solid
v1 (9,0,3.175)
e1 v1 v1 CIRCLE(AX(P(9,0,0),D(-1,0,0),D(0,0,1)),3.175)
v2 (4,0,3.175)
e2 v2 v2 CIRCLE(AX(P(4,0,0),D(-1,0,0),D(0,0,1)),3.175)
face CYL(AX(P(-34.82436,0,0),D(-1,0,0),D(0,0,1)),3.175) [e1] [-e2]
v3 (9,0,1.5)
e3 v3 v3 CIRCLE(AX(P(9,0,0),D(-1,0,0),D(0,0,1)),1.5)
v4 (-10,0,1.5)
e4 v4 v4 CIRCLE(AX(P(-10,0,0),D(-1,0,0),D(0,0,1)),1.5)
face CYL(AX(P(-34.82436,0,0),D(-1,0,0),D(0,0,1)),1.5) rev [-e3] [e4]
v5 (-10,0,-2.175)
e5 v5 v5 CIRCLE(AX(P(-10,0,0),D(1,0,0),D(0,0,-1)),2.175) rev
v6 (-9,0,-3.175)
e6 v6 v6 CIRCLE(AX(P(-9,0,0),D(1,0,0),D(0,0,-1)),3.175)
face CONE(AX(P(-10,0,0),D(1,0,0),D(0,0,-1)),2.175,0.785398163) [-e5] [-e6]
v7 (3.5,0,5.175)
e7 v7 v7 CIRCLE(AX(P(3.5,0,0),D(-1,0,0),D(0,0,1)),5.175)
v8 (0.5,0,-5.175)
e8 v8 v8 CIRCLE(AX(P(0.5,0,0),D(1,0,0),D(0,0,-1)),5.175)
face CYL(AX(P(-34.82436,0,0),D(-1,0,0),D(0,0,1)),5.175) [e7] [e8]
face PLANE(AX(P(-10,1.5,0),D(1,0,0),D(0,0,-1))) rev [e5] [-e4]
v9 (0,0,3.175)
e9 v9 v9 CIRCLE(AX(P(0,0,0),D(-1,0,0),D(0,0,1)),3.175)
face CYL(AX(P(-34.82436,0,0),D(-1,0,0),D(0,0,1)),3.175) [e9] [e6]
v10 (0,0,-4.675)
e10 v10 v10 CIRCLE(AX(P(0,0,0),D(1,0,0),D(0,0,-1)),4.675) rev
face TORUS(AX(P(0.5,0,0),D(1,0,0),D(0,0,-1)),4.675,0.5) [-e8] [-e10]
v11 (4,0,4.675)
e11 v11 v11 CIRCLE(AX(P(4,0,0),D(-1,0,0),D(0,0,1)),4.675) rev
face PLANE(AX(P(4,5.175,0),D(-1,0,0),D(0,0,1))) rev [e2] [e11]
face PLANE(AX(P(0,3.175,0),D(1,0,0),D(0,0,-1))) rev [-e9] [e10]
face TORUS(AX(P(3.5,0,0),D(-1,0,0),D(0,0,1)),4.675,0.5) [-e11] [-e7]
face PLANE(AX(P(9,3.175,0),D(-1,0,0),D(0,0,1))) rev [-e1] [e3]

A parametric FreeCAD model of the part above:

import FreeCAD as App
import Part
import Sketcher
from FreeCAD import Vector
Q = App.Units.Quantity


def edges_at(feature, points):
    """Names of the edges that pass closest to the given points."""
    edges = feature.Shape.Edges
    near = lambda p: min(range(len(edges)), key=lambda i: edges[i].distToShape(Part.Vertex(*p))[0])
    return sorted({f"Edge{near(p) + 1}" for p in points})


def add_polygon(sketch, points):
    """Adds a closed chain of lines whose ends are joined by coincident constraints."""
    first, n = sketch.GeometryCount, len(points)
    for a, b in zip(points, points[1:] + points[:1]):
        sketch.addGeometry(Part.LineSegment(App.Vector(*a, 0), App.Vector(*b, 0)), False)
    for i in range(n):
        sketch.addConstraint(Sketcher.Constraint("Coincident", first + i, 2, first + (i + 1) % n, 1))

doc = App.newDocument("Part")
params = doc.addObject("Spreadsheet::Sheet", "Params")
for row, (alias, value) in enumerate([
    ("sketch1_width", "19 mm"),
    ("sketch1_width2", "5 mm"),
    ("sketch1_width3", "4 mm"),
    ("sketch1_height", "2 mm"),
    ("revolution_angle", "360 deg"),
    ("chamfer_size", "1 mm"),
    ("fillet_radius", "0.5 mm"),
], start=1):
    params.set(f"A{row}", alias)
    params.set(f"B{row}", "=" + value)
    params.setAlias(f"B{row}", alias)

body = doc.addObject("PartDesign::Body", "Body")

sketch1 = doc.addObject("Sketcher::SketchObject", "Sketch")
body.addObject(sketch1)
sketch1.AttachmentSupport = (doc.XY_Plane, [""])
sketch1.MapMode = "FlatFace"
add_polygon(sketch1, [(-10, 3.2), (-10, 1.5), (9, 1.5), (9, 3.2), (4, 3.2), (4, 5.2), (0, 5.2), (0, 3.2)])
sketch1.addConstraint([
    Sketcher.Constraint("Vertical", 0),
    Sketcher.Constraint("Horizontal", 1),
    Sketcher.Constraint("Vertical", 2),
    Sketcher.Constraint("Horizontal", 3),
    Sketcher.Constraint("Vertical", 4),
    Sketcher.Constraint("Horizontal", 5),
    Sketcher.Constraint("Vertical", 6),
    Sketcher.Constraint("Horizontal", 7),
    Sketcher.Constraint("PointOnObject", 5, 2, -2),
    Sketcher.Constraint("Horizontal", 3, 2, 6, 2),
    Sketcher.Constraint("DistanceX", 1, 1, 1, 2, Q("19 mm")),
    Sketcher.Constraint("DistanceX", 3, 2, 3, 1, Q("5 mm")),
    Sketcher.Constraint("DistanceX", 5, 2, 5, 1, Q("4 mm")),
    Sketcher.Constraint("DistanceY", 4, 1, 4, 2, Q("2 mm")),
    Sketcher.Constraint("DistanceY", -1, 1, 0, 2, Q("1.5 mm")),
    Sketcher.Constraint("DistanceY", 0, 2, 0, 1, Q("1.675 mm")),
])
sketch1.setExpression("Constraints[18]", "Params.sketch1_width")
sketch1.setExpression("Constraints[19]", "Params.sketch1_width2")
sketch1.setExpression("Constraints[20]", "Params.sketch1_width3")
sketch1.setExpression("Constraints[21]", "Params.sketch1_height")
revolution = doc.addObject("PartDesign::Revolution", "Revolution")
body.addObject(revolution)
revolution.Profile = sketch1
revolution.ReferenceAxis = (sketch1, ["H_Axis"])
revolution.setExpression("Angle", "Params.revolution_angle")
doc.recompute()

chamfer = doc.addObject("PartDesign::Chamfer", "Chamfer")
body.addObject(chamfer)
chamfer.Base = (revolution, edges_at(revolution, [(-10, -3.175, 0)]))
chamfer.setExpression("Size", "Params.chamfer_size")
doc.recompute()

fillet = doc.addObject("PartDesign::Fillet", "Fillet")
body.addObject(fillet)
fillet.Base = (chamfer, edges_at(chamfer, [(0, -5.175, 0), (4, -5.175, 0)]))
fillet.setExpression("Radius", "Params.fillet_radius")

doc.recompute()
